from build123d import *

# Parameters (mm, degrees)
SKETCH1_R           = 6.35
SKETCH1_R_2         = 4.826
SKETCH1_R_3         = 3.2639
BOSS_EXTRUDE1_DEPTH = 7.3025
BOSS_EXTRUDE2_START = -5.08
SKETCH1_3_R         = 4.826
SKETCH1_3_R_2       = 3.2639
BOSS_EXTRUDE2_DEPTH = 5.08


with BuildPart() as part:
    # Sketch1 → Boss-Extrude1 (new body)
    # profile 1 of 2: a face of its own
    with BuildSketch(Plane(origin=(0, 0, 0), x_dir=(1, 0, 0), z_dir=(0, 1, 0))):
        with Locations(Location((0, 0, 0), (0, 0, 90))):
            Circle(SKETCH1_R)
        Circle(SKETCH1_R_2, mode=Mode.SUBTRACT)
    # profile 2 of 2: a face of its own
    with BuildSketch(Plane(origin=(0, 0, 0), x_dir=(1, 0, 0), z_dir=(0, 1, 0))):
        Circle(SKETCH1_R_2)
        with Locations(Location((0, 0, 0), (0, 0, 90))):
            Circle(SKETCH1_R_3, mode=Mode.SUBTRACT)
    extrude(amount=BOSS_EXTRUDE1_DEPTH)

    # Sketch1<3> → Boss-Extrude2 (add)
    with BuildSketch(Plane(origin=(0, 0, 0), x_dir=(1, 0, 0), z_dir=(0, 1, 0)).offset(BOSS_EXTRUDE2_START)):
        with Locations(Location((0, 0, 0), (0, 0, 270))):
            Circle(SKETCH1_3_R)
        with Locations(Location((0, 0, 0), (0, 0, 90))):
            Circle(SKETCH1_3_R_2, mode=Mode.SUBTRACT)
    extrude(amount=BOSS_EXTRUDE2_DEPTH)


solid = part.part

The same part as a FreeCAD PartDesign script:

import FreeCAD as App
import Part
import Sketcher
Q = App.Units.Quantity

doc = App.newDocument("Part")
body = doc.addObject("PartDesign::Body", "Body")

sketch1 = body.newObject("Sketcher::SketchObject", "Sketch")
sketch1.AttachmentSupport = (doc.getObject("XZ_Plane"), [""])
sketch1.MapMode = "FlatFace"
sketch1.addGeometry(Part.Circle(App.Vector(0, 0, 0), App.Vector(0, 0, 1), 6.3), False)
sketch1.addGeometry(Part.Circle(App.Vector(0, 0, 0), App.Vector(0, 0, 1), 3.3), False)
sketch1.addConstraint(Sketcher.Constraint("Coincident", 0, 3, -1, 1))
sketch1.addConstraint(Sketcher.Constraint("Coincident", 1, 3, -1, 1))
sketch1.addConstraint(Sketcher.Constraint("Diameter", 0, Q("0.5 in")))
sketch1.addConstraint(Sketcher.Constraint("Diameter", 1, Q("0.257 in")))
pad1 = body.newObject("PartDesign::Pad", "Pad")
pad1.Profile = sketch1
pad1.Length = Q("0.2875 in")
pad1.Reversed = True

sketch2 = body.newObject("Sketcher::SketchObject", "Sketch001")
sketch2.AttachmentSupport = (doc.getObject("XZ_Plane"), [""])
sketch2.MapMode = "FlatFace"
sketch2.AttachmentOffset = App.Placement(App.Vector(0, 0, 0.2 * 25.4), App.Rotation())
sketch2.addGeometry(Part.Circle(App.Vector(0, 0, 0), App.Vector(0, 0, 1), 4.8), False)
sketch2.addGeometry(Part.Circle(App.Vector(0, 0, 0), App.Vector(0, 0, 1), 3.3), False)
sketch2.addConstraint(Sketcher.Constraint("Coincident", 0, 3, -1, 1))
sketch2.addConstraint(Sketcher.Constraint("Coincident", 1, 3, -1, 1))
sketch2.addConstraint(Sketcher.Constraint("Diameter", 0, Q("0.38 in")))
sketch2.addConstraint(Sketcher.Constraint("Diameter", 1, Q("0.257 in")))
pad2 = body.newObject("PartDesign::Pad", "Pad001")
pad2.Profile = sketch2
pad2.Length = Q("0.2 in")
pad2.Reversed = True

doc.recompute()
